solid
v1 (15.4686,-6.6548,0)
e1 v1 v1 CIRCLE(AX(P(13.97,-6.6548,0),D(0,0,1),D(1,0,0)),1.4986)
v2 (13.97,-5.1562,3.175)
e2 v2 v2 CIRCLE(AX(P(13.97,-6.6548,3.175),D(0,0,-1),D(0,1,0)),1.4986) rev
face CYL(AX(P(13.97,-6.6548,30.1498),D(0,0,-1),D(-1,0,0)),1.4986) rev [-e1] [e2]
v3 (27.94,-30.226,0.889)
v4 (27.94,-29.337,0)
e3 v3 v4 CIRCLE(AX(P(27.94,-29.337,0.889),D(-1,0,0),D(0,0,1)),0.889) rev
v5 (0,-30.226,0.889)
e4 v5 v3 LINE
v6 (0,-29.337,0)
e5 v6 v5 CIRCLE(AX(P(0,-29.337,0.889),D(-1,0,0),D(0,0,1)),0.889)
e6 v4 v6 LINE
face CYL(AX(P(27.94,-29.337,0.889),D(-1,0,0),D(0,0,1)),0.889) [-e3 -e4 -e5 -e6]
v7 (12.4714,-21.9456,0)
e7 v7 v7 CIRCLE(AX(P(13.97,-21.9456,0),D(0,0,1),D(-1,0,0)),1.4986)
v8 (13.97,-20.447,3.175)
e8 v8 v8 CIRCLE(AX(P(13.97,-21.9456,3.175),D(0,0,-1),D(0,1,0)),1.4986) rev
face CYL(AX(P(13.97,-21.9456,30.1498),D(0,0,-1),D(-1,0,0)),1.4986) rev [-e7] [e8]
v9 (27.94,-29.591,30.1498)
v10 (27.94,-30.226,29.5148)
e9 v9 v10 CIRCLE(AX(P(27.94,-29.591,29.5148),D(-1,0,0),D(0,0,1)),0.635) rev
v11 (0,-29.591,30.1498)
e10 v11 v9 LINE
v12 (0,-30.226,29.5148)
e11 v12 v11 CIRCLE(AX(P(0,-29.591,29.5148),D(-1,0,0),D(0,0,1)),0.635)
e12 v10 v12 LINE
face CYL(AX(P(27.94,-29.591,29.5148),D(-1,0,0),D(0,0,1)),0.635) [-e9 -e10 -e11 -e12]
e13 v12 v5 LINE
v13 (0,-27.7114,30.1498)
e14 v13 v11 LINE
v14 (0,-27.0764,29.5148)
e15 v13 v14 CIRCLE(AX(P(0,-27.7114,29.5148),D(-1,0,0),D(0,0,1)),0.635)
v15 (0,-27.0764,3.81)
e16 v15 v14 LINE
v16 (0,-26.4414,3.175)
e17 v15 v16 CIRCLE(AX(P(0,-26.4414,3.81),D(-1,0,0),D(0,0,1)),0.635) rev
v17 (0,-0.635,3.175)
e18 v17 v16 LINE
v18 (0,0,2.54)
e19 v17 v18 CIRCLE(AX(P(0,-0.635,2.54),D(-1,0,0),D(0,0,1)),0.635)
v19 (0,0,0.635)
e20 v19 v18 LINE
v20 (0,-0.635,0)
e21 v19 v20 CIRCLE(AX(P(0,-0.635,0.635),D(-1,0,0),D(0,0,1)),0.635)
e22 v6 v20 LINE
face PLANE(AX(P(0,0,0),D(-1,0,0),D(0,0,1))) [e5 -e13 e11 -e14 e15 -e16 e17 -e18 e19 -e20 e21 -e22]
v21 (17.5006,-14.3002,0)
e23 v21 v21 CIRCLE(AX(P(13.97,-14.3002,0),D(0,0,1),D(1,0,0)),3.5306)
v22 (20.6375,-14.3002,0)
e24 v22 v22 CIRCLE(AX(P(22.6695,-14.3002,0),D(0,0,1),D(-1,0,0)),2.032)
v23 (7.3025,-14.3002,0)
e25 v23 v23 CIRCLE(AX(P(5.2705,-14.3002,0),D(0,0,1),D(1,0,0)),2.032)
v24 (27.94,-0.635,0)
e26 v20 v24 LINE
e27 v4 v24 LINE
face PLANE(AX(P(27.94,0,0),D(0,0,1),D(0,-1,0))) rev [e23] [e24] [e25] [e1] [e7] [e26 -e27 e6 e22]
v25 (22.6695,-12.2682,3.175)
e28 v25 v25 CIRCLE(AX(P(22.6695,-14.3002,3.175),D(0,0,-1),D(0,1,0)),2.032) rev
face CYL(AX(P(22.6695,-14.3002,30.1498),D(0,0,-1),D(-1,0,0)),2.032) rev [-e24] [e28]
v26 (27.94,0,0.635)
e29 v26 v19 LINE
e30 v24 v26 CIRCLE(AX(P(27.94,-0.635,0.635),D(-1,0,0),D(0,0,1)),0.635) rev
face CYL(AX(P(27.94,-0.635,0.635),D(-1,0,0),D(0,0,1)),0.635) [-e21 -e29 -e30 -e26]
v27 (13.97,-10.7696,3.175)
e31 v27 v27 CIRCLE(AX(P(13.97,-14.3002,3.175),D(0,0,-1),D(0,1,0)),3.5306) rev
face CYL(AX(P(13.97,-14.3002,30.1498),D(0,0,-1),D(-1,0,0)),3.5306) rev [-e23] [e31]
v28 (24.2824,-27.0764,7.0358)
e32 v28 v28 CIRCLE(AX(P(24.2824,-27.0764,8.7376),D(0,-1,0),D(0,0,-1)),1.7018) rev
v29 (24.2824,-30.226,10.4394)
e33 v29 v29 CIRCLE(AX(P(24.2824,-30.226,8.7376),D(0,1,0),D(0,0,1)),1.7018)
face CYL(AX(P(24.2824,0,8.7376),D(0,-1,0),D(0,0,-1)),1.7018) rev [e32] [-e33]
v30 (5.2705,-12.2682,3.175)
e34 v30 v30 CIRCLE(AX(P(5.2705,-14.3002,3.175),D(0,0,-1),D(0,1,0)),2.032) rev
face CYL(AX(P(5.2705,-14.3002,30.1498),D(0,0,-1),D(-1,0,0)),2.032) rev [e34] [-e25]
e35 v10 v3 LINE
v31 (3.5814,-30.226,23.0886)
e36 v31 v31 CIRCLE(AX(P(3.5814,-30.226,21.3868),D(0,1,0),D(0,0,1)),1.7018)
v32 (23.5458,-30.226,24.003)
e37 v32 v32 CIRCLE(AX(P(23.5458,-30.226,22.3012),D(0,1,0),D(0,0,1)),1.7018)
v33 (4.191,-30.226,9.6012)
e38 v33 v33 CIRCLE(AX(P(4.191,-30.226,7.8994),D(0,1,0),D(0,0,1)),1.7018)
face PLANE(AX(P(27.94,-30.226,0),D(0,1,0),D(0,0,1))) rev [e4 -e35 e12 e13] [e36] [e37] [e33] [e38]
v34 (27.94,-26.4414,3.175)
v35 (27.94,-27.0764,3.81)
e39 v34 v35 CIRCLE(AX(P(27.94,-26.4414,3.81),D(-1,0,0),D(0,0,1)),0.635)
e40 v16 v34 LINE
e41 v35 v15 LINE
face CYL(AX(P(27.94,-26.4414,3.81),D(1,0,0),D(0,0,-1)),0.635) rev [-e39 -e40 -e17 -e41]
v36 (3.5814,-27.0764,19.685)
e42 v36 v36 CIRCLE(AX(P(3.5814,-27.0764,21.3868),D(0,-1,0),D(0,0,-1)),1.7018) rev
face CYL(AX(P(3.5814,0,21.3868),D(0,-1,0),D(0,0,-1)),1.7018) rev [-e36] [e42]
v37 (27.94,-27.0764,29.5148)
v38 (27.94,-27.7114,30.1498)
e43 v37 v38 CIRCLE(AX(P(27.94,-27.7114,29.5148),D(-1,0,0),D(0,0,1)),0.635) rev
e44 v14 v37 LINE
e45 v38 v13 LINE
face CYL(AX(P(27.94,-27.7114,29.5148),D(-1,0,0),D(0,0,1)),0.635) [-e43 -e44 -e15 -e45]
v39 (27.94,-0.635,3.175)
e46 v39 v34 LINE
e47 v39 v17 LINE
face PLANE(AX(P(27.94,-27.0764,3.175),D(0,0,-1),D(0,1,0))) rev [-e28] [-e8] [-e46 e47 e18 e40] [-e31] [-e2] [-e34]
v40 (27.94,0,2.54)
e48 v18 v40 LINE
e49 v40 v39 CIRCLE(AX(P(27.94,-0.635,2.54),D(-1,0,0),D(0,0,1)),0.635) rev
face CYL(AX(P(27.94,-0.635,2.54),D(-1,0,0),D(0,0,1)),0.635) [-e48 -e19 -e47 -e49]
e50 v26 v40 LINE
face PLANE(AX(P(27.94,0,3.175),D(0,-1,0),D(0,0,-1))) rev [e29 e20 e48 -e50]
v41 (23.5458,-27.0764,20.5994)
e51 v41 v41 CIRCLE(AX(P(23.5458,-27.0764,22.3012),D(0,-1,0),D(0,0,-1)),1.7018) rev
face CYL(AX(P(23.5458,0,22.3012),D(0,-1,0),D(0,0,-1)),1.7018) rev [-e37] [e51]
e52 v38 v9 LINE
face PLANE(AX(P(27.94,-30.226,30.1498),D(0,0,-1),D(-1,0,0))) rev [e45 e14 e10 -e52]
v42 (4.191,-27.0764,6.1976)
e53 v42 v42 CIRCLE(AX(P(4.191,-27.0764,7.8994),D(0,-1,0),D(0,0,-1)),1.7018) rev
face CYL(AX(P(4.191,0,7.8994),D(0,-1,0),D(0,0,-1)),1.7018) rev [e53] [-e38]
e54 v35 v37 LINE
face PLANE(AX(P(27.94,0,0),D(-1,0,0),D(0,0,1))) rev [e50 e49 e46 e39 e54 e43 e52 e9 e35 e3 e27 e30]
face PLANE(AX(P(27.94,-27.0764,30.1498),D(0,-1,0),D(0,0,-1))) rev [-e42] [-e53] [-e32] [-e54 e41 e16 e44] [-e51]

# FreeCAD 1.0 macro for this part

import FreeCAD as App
import Part
import Sketcher
Q = App.Units.Quantity


def edges_at(feature, points):
    """Names of the edges that pass closest to the given points."""
    edges = feature.Shape.Edges
    near = lambda p: min(range(len(edges)), key=lambda i: edges[i].distToShape(Part.Vertex(*p))[0])
    return sorted({f"Edge{near(p) + 1}" for p in points})


def add_polygon(sketch, points):
    """Adds a closed chain of lines whose ends are joined by coincident constraints."""
    first, n = sketch.GeometryCount, len(points)
    for a, b in zip(points, points[1:] + points[:1]):
        sketch.addGeometry(Part.LineSegment(App.Vector(*a, 0), App.Vector(*b, 0)), False)
    for i in range(n):
        sketch.addConstraint(Sketcher.Constraint("Coincident", first + i, 2, first + (i + 1) % n, 1))

doc = App.newDocument("Part")
body = doc.addObject("PartDesign::Body", "Body")

# Sketch on YZ plane
sketch1 = body.newObject("Sketcher::SketchObject", "Sketch")
sketch1.AttachmentSupport = (doc.getObject("YZ_Plane"), [""])
sketch1.MapMode = "FlatFace"
add_polygon(sketch1, [(-30.2, 0), (0, 0), (0, 3.2), (-27.1, 3.2), (-27.1, 30.1), (-30.2, 30.1)])  # lines 0-5
sketch1.addConstraint(Sketcher.Constraint("Horizontal", 0))
sketch1.addConstraint(Sketcher.Constraint("Vertical", 1))
sketch1.addConstraint(Sketcher.Constraint("Horizontal", 2))
sketch1.addConstraint(Sketcher.Constraint("Vertical", 3))
sketch1.addConstraint(Sketcher.Constraint("Horizontal", 4))
sketch1.addConstraint(Sketcher.Constraint("Vertical", 5))
sketch1.addConstraint(Sketcher.Constraint("Coincident", 0, 2, -1, 1))
sketch1.addConstraint(Sketcher.Constraint("DistanceX", 0, 1, 0, 2, Q("1.19 in")))
sketch1.addConstraint(Sketcher.Constraint("DistanceX", 2, 2, 2, 1, Q("1.066 in")))
sketch1.addConstraint(Sketcher.Constraint("DistanceY", 1, 1, 1, 2, Q("0.125 in")))
sketch1.addConstraint(Sketcher.Constraint("DistanceY", 3, 1, 3, 2, Q("1.062 in")))
pad1 = body.newObject("PartDesign::Pad", "Pad")
pad1.Profile = sketch1
pad1.Length = Q("1.1 in")

# Sketch on XY plane
sketch2 = body.newObject("Sketcher::SketchObject", "Sketch001")
sketch2.AttachmentSupport = (doc.getObject("XY_Plane"), [""])
sketch2.MapMode = "FlatFace"
sketch2.addGeometry(Part.Circle(App.Vector(14, -14.3, 0), App.Vector(0, 0, 1), 3.5), False)
sketch2.addGeometry(Part.Circle(App.Vector(14, -6.7, 0), App.Vector(0, 0, 1), 1.5), False)
sketch2.addGeometry(Part.Circle(App.Vector(5.3, -14.3, 0), App.Vector(0, 0, 1), 2), False)
sketch2.addGeometry(Part.Circle(App.Vector(22.7, -14.3, 0), App.Vector(0, 0, 1), 2), False)
sketch2.addGeometry(Part.Circle(App.Vector(14, -21.9, 0), App.Vector(0, 0, 1), 1.5), False)
sketch2.addConstraint(Sketcher.Constraint("Equal", 2, 3))
sketch2.addConstraint(Sketcher.Constraint("Equal", 1, 4))
sketch2.addConstraint(Sketcher.Constraint("Horizontal", 0, 3, 2, 3))
sketch2.addConstraint(Sketcher.Constraint("Horizontal", 2, 3, 3, 3))
sketch2.addConstraint(Sketcher.Constraint("Vertical", 0, 3, 1, 3))
sketch2.addConstraint(Sketcher.Constraint("Vertical", 1, 3, 4, 3))
sketch2.addConstraint(Sketcher.Constraint("Diameter", 2, Q("0.16 in")))
sketch2.addConstraint(Sketcher.Constraint("Diameter", 0, Q("0.278 in")))
sketch2.addConstraint(Sketcher.Constraint("Diameter", 1, Q("0.118 in")))
sketch2.addConstraint(Sketcher.Constraint("DistanceX", -1, 1, 0, 3, Q("0.55 in")))
sketch2.addConstraint(Sketcher.Constraint("DistanceY", 0, 3, -1, 1, Q("0.563 in")))
sketch2.addConstraint(Sketcher.Constraint("DistanceY", 1, 3, -1, 1, Q("0.262 in")))
sketch2.addConstraint(Sketcher.Constraint("DistanceY", 4, 3, -1, 1, Q("0.864 in")))
sketch2.addConstraint(Sketcher.Constraint("DistanceX", 2, 3, 3, 3, Q("0.685 in")))
sketch2.addConstraint(Sketcher.Constraint("DistanceX", -1, 1, 2, 3, Q("0.2075 in")))
pocket1 = body.newObject("PartDesign::Pocket", "Pocket")
pocket1.Profile = sketch2
pocket1.Type = "ThroughAll"
pocket1.Reversed = True

# Sketch on XZ plane
sketch3 = body.newObject("Sketcher::SketchObject", "Sketch002")
sketch3.AttachmentSupport = (doc.getObject("XZ_Plane"), [""])
sketch3.MapMode = "FlatFace"
sketch3.AttachmentOffset = App.Placement(App.Vector(0, 0, 1.19 * 25.4), App.Rotation())
sketch3.addGeometry(Part.Circle(App.Vector(4.2, 7.9, 0), App.Vector(0, 0, 1), 1.7), False)
sketch3.addGeometry(Part.Circle(App.Vector(24.3, 8.7, 0), App.Vector(0, 0, 1), 1.7), False)
sketch3.addGeometry(Part.Circle(App.Vector(3.6, 21.4, 0), App.Vector(0, 0, 1), 1.7), False)
sketch3.addGeometry(Part.Circle(App.Vector(23.5, 22.3, 0), App.Vector(0, 0, 1), 1.7), False)
sketch3.addConstraint(Sketcher.Constraint("Equal", 0, 1))
sketch3.addConstraint(Sketcher.Constraint("Equal", 1, 2))
sketch3.addConstraint(Sketcher.Constraint("Equal", 2, 3))
sketch3.addConstraint(Sketcher.Constraint("Diameter", 0, Q("0.134 in")))
sketch3.addConstraint(Sketcher.Constraint("DistanceX", -1, 1, 0, 3, Q("0.165 in")))
sketch3.addConstraint(Sketcher.Constraint("DistanceY", -1, 1, 0, 3, Q("0.311 in")))
sketch3.addConstraint(Sketcher.Constraint("DistanceX", -1, 1, 1, 3, Q("0.956 in")))
sketch3.addConstraint(Sketcher.Constraint("DistanceY", -1, 1, 1, 3, Q("0.344 in")))
sketch3.addConstraint(Sketcher.Constraint("DistanceX", -1, 1, 2, 3, Q("0.141 in")))
sketch3.addConstraint(Sketcher.Constraint("DistanceY", -1, 1, 2, 3, Q("0.842 in")))
sketch3.addConstraint(Sketcher.Constraint("DistanceX", -1, 1, 3, 3, Q("0.927 in")))
sketch3.addConstraint(Sketcher.Constraint("DistanceY", -1, 1, 3, 3, Q("0.878 in")))
pocket2 = body.newObject("PartDesign::Pocket", "Pocket001")
pocket2.Profile = sketch3
pocket2.Type = "ThroughAll"
doc.recompute()

fillet = body.newObject("PartDesign::Fillet", "Fillet")
fillet.Base = (pocket2, edges_at(pocket2, [(13.97, -27.076, 3.175)]))
fillet.Radius = Q("0.025 in")
doc.recompute()

fillet2 = body.newObject("PartDesign::Fillet", "Fillet001")
fillet2.Base = (fillet, edges_at(fillet, [(13.97, -30.226, 0)]))
fillet2.Radius = Q("0.035 in")
doc.recompute()

fillet3 = body.newObject("PartDesign::Fillet", "Fillet002")
fillet3.Base = (fillet2, edges_at(fillet2, [
    (13.97, 0, 0),
    (13.97, -30.226, 30.15),
    (13.97, -27.076, 30.15),
    (13.97, 0, 3.175),
]))
fillet3.Radius = Q("0.025 in")

doc.recompute()
